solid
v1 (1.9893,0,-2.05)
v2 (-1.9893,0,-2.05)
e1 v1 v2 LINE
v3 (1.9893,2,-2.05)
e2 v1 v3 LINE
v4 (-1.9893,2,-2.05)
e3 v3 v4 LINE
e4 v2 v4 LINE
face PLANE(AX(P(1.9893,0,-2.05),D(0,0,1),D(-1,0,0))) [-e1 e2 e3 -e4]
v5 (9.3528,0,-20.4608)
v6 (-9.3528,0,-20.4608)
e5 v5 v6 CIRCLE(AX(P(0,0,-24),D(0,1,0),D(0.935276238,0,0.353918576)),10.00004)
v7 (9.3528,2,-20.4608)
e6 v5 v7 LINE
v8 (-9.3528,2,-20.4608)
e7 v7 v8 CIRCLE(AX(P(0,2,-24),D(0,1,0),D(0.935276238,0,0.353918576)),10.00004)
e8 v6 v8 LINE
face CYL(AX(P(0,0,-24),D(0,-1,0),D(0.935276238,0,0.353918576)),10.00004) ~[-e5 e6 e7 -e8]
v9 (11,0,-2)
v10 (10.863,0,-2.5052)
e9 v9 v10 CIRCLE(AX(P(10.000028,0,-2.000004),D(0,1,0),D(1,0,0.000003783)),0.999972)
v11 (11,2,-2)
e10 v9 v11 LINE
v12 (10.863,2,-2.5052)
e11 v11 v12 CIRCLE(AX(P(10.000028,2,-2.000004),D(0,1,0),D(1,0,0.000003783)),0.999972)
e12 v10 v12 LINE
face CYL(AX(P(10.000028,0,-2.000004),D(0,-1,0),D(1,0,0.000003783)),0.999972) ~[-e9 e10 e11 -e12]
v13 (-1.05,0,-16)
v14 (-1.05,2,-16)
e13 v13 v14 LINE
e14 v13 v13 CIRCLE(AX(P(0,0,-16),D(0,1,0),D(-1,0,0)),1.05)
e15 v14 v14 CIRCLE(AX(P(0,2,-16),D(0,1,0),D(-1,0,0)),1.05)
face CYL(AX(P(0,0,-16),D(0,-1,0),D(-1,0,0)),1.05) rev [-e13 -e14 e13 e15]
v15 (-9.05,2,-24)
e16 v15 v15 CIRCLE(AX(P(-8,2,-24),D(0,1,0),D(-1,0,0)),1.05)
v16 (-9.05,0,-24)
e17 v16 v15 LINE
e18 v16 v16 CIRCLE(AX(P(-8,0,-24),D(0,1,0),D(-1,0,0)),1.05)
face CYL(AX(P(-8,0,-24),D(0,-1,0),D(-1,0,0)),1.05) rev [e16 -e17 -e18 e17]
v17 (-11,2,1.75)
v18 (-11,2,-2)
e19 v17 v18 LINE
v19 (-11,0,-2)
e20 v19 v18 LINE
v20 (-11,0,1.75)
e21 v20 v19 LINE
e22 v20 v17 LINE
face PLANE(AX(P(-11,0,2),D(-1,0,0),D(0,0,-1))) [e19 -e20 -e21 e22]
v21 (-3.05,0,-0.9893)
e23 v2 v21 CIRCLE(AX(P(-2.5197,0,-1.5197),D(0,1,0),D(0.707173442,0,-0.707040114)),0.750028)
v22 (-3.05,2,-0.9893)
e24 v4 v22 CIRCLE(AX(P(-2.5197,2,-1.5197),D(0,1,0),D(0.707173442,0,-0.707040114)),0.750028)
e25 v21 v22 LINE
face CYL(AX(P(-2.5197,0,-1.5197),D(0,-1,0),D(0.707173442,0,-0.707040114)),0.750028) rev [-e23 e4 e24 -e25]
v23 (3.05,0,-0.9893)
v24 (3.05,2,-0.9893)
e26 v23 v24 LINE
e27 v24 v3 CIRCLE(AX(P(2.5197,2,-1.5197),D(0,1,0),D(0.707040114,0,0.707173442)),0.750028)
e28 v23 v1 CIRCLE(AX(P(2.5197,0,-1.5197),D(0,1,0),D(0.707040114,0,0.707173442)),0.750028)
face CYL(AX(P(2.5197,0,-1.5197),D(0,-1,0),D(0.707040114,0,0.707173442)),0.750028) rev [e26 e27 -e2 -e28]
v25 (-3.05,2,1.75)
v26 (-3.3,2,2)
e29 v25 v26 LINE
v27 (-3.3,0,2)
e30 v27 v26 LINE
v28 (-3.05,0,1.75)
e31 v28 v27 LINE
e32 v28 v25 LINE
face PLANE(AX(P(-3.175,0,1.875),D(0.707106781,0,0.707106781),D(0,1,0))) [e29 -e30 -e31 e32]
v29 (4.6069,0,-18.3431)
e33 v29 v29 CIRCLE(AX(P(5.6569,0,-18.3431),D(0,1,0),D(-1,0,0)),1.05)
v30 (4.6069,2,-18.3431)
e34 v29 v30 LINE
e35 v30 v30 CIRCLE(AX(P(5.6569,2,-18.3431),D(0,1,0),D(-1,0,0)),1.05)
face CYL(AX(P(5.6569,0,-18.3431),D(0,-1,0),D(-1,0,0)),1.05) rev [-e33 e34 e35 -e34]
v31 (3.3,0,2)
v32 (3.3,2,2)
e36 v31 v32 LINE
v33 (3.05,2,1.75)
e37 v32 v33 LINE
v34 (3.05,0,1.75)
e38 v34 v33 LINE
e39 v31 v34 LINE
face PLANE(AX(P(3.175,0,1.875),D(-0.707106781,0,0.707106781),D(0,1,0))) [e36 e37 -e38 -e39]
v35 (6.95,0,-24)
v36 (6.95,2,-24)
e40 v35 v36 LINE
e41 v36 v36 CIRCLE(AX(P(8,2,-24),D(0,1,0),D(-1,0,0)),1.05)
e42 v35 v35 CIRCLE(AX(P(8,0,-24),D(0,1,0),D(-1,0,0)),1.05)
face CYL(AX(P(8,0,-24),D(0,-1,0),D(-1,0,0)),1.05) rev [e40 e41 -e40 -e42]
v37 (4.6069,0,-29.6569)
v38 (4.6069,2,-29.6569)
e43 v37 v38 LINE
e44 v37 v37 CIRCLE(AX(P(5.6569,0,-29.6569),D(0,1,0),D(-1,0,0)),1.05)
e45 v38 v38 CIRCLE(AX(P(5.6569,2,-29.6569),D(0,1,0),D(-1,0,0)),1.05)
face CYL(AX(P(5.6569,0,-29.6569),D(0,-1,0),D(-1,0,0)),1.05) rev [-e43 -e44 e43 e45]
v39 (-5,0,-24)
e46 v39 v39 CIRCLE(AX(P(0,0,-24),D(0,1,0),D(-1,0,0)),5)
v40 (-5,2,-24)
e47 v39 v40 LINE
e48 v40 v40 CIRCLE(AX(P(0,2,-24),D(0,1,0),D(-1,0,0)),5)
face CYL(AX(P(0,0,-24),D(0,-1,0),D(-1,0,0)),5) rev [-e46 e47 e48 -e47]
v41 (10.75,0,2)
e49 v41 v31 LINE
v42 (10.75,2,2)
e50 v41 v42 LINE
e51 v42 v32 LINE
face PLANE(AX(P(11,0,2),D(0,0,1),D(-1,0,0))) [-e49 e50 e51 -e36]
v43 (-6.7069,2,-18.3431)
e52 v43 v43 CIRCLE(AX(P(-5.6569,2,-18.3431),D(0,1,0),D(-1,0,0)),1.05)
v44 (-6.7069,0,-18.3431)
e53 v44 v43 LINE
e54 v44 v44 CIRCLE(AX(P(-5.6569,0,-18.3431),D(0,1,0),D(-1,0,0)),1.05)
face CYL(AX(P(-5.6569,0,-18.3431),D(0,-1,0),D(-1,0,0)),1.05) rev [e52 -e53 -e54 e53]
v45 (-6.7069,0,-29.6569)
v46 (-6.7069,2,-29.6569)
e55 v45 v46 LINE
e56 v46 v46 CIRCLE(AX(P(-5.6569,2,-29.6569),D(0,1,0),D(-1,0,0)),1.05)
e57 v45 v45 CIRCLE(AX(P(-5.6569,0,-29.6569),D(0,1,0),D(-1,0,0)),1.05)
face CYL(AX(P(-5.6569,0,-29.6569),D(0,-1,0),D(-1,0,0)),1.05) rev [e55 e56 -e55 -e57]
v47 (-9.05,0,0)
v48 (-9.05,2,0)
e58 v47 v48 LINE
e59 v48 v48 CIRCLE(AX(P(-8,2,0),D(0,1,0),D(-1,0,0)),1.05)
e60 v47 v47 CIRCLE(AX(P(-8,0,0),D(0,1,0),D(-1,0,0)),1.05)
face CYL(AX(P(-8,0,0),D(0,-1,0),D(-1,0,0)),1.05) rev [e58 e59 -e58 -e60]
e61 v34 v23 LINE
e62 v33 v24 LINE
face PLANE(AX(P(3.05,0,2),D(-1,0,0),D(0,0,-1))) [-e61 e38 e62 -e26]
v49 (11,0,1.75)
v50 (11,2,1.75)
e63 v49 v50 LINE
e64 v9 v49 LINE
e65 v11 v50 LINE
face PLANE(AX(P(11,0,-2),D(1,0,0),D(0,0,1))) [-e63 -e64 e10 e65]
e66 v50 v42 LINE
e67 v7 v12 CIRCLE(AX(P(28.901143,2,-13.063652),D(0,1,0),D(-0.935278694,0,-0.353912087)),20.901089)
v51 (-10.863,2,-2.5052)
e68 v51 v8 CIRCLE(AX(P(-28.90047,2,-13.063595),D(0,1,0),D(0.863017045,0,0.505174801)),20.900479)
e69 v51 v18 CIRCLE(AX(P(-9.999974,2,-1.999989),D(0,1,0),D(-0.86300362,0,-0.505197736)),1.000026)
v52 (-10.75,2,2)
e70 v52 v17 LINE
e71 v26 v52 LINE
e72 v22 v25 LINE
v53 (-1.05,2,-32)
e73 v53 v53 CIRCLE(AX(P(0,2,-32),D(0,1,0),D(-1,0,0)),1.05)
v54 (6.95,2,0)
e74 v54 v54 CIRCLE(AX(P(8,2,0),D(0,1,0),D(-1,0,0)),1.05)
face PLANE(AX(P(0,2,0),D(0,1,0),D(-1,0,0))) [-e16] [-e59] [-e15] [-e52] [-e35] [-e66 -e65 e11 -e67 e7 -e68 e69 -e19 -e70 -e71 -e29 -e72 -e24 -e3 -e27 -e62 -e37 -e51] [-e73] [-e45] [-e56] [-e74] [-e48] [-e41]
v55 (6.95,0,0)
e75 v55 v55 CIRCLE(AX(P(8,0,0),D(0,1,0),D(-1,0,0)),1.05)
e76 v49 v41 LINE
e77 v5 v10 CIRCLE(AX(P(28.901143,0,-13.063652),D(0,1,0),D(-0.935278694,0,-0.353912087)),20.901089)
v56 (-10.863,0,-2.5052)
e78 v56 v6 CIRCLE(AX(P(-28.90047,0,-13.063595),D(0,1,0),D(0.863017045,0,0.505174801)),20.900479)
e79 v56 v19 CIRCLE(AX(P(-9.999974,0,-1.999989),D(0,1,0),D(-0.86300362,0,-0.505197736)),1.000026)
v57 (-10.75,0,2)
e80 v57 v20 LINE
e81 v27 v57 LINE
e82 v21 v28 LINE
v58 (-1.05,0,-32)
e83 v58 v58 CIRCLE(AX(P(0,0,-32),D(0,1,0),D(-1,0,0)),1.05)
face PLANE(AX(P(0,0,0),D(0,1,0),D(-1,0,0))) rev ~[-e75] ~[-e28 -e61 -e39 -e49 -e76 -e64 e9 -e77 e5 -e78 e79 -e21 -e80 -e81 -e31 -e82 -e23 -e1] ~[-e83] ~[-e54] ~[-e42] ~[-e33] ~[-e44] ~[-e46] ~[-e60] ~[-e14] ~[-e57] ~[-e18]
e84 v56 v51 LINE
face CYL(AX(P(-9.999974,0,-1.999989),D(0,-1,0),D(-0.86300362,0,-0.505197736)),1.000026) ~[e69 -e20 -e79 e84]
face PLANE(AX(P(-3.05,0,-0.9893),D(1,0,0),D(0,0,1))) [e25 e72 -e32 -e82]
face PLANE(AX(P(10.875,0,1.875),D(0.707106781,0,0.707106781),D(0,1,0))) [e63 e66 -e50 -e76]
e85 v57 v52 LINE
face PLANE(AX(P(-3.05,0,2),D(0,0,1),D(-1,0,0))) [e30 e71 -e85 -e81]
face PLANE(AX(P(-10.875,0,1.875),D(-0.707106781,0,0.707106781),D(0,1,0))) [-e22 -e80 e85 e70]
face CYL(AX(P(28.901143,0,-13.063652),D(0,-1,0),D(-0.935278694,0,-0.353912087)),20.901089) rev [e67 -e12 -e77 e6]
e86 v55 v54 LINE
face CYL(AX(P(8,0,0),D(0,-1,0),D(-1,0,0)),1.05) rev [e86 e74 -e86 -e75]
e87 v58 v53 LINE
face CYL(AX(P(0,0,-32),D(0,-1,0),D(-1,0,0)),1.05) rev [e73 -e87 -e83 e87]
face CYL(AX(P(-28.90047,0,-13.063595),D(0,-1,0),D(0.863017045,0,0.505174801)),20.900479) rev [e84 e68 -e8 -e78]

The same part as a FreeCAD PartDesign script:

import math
import FreeCAD as App
import Part
import Sketcher


def edges_at(feature, points):
    """Names of the edges that pass closest to the given points."""
    edges = feature.Shape.Edges
    near = lambda p: min(range(len(edges)), key=lambda i: edges[i].distToShape(Part.Vertex(*p))[0])
    return sorted({f"Edge{near(p) + 1}" for p in points})

doc = App.newDocument("Part")
body = doc.addObject("PartDesign::Body", "Body")

sketch1 = doc.addObject("Sketcher::SketchObject", "Sketch")
body.addObject(sketch1)
sketch1.AttachmentSupport = (doc.XZ_Plane, [""])
sketch1.MapMode = "FlatFace"
sketch1.addGeometry([
    Part.ArcOfCircle(Part.Circle(App.Vector(28.9, -13.1, 0), App.Vector(0, 0, 1), 20.9), math.radians(150), math.radians(201)),
    Part.ArcOfCircle(Part.Circle(App.Vector(0, -24, 0), App.Vector(0, 0, 1), 10), math.radians(159), math.radians(381)),
    Part.ArcOfCircle(Part.Circle(App.Vector(-28.9, -13.1, 0), App.Vector(0, 0, 1), 20.9), math.radians(-21), math.radians(30)),
    Part.ArcOfCircle(Part.Circle(App.Vector(-10, -2, 0), App.Vector(0, 0, 1), 1), math.radians(180), math.radians(210)),
    Part.LineSegment(App.Vector(-11, -2, 0), App.Vector(-11, 2, 0)),
    Part.LineSegment(App.Vector(-11, 2, 0), App.Vector(-3, 2, 0)),
    Part.LineSegment(App.Vector(-3, 2, 0), App.Vector(-3, -1, 0)),
    Part.ArcOfCircle(Part.Circle(App.Vector(-2.5, -1.5, 0), App.Vector(0, 0, 1), 0.8), math.radians(135), math.radians(315)),
    Part.LineSegment(App.Vector(-2, -2, 0), App.Vector(2, -2, 0)),
    Part.ArcOfCircle(Part.Circle(App.Vector(2.5, -1.5, 0), App.Vector(0, 0, 1), 0.8), math.radians(-135), math.radians(45)),
    Part.LineSegment(App.Vector(3, -1, 0), App.Vector(3, 2, 0)),
    Part.LineSegment(App.Vector(3, 2, 0), App.Vector(11, 2, 0)),
    Part.LineSegment(App.Vector(11, 2, 0), App.Vector(11, -2, 0)),
    Part.ArcOfCircle(Part.Circle(App.Vector(10, -2, 0), App.Vector(0, 0, 1), 1), math.radians(-30), math.radians(0)),
    Part.Circle(App.Vector(5.7, -29.7, 0), App.Vector(0, 0, 1), 1.1),
    Part.Circle(App.Vector(8, -24, 0), App.Vector(0, 0, 1), 1.1),
    Part.Circle(App.Vector(5.7, -18.3, 0), App.Vector(0, 0, 1), 1.1),
    Part.Circle(App.Vector(0, -32, 0), App.Vector(0, 0, 1), 1.1),
    Part.Circle(App.Vector(-5.7, -29.7, 0), App.Vector(0, 0, 1), 1.1),
    Part.Circle(App.Vector(0, -24, 0), App.Vector(0, 0, 1), 5),
    Part.Circle(App.Vector(-8, -24, 0), App.Vector(0, 0, 1), 1.1),
    Part.Circle(App.Vector(-5.7, -18.3, 0), App.Vector(0, 0, 1), 1.1),
    Part.Circle(App.Vector(8, 0, 0), App.Vector(0, 0, 1), 1.1),
    Part.Circle(App.Vector(0, -16, 0), App.Vector(0, 0, 1), 1.1),
    Part.Circle(App.Vector(-8, 0, 0), App.Vector(0, 0, 1), 1.1),
], False)
sketch1.addConstraint([
    Sketcher.Constraint("Tangent", 0, 2, 1, 2),
    Sketcher.Constraint("Tangent", 1, 1, 2, 1),
    Sketcher.Constraint("Tangent", 2, 2, 3, 2),
    Sketcher.Constraint("Tangent", 3, 1, 4, 1),
    Sketcher.Constraint("Coincident", 4, 2, 5, 1),
    Sketcher.Constraint("Coincident", 5, 2, 6, 1),
    Sketcher.Constraint("Coincident", 6, 2, 7, 1),
    Sketcher.Constraint("Coincident", 7, 2, 8, 1),
    Sketcher.Constraint("Coincident", 8, 2, 9, 1),
    Sketcher.Constraint("Coincident", 9, 2, 10, 1),
    Sketcher.Constraint("Coincident", 10, 2, 11, 1),
    Sketcher.Constraint("Coincident", 11, 2, 12, 1),
    Sketcher.Constraint("Tangent", 12, 2, 13, 2),
    Sketcher.Constraint("Tangent", 13, 1, 0, 1),
    Sketcher.Constraint("Vertical", 4),
    Sketcher.Constraint("Horizontal", 5),
    Sketcher.Constraint("Vertical", 6),
    Sketcher.Constraint("Horizontal", 8),
    Sketcher.Constraint("Vertical", 10),
    Sketcher.Constraint("Horizontal", 11),
    Sketcher.Constraint("Vertical", 12),
    Sketcher.Constraint("Coincident", 19, 3, 1, 3),
    Sketcher.Constraint("Equal", 0, 2),
    Sketcher.Constraint("Equal", 7, 9),
    Sketcher.Constraint("Equal", 3, 13),
    Sketcher.Constraint("Equal", 14, 15),
    Sketcher.Constraint("Equal", 15, 16),
    Sketcher.Constraint("Equal", 16, 17),
    Sketcher.Constraint("Equal", 17, 18),
    Sketcher.Constraint("Equal", 18, 20),
    Sketcher.Constraint("Equal", 20, 21),
    Sketcher.Constraint("Equal", 21, 22),
    Sketcher.Constraint("Equal", 22, 23),
    Sketcher.Constraint("Equal", 23, 24),
    Sketcher.Constraint("Symmetric", 22, 3, 24, 3, -1, 1),
    Sketcher.Constraint("Symmetric", 3, 1, 11, 2, -1, 1),
    Sketcher.Constraint("Symmetric", 0, 3, 2, 3, -2),
    Sketcher.Constraint("Symmetric", 7, 3, 9, 3, -2),
    Sketcher.Constraint("Symmetric", 14, 3, 18, 3, -2),
    Sketcher.Constraint("Symmetric", 15, 3, 20, 3, -2),
    Sketcher.Constraint("Symmetric", 16, 3, 21, 3, -2),
    Sketcher.Constraint("Symmetric", 5, 2, 10, 2, -2),
    Sketcher.Constraint("PointOnObject", 17, 3, -2),
    Sketcher.Constraint("PointOnObject", 22, 3, -1),
    Sketcher.Constraint("PointOnObject", 23, 3, -2),
    Sketcher.Constraint("Horizontal", 1, 3, 15, 3),
    Sketcher.Constraint("Vertical", 14, 3, 16, 3),
    Sketcher.Constraint("Vertical", 15, 3, 22, 3),
    Sketcher.Constraint("Diameter", 19, 10.0),
    Sketcher.Constraint("Radius", 1, 10.0),
    Sketcher.Constraint("Radius", 3, 1.0),
    Sketcher.Constraint("Diameter", 14, 2.1),
    Sketcher.Constraint("DistanceY", 4, 1, 4, 2, 4.0),
    Sketcher.Constraint("Radius", 7, 0.75),
    Sketcher.Constraint("DistanceX", 3, 3, -1, 1, 10.0),
    Sketcher.Constraint("DistanceY", 23, 3, -1, 1, 16.0),
    Sketcher.Constraint("DistanceY", 1, 3, 3, 3, 22.0),
    Sketcher.Constraint("DistanceX", 24, 3, 22, 3, 16.0),
    Sketcher.Constraint("DistanceX", 5, 2, 10, 2, 6.1),
    Sketcher.Constraint("DistanceY", 7, 2, 5, 2, 4.05),
    Sketcher.Constraint("DistanceY", 17, 3, -1, 1, 32.0),
    Sketcher.Constraint("Radius", 0, 20.9008),
    Sketcher.Constraint("DistanceX", 8, 1, 8, 2, 3.9786),
    Sketcher.Constraint("DistanceX", -1, 1, 14, 3, 5.657),
    Sketcher.Constraint("DistanceY", 14, 3, -1, 1, 29.657),
    Sketcher.Constraint("DistanceY", 16, 3, -1, 1, 18.343),
    Sketcher.Constraint("DistanceX", 2, 3, 7, 3, 26.381),
])
pad1 = doc.addObject("PartDesign::Pad", "Pad")
body.addObject(pad1)
pad1.Profile = sketch1
pad1.Length = 2
pad1.Reversed = True
doc.recompute()

chamfer = doc.addObject("PartDesign::Chamfer", "Chamfer")
body.addObject(chamfer)
chamfer.Base = (pad1, edges_at(pad1, [
    (11, 1, 2),
    (-11, 1, 2),
    (-3.05, 1, 2),
    (3.05, 1, 2),
]))
chamfer.Size = 0.25

doc.recompute()
